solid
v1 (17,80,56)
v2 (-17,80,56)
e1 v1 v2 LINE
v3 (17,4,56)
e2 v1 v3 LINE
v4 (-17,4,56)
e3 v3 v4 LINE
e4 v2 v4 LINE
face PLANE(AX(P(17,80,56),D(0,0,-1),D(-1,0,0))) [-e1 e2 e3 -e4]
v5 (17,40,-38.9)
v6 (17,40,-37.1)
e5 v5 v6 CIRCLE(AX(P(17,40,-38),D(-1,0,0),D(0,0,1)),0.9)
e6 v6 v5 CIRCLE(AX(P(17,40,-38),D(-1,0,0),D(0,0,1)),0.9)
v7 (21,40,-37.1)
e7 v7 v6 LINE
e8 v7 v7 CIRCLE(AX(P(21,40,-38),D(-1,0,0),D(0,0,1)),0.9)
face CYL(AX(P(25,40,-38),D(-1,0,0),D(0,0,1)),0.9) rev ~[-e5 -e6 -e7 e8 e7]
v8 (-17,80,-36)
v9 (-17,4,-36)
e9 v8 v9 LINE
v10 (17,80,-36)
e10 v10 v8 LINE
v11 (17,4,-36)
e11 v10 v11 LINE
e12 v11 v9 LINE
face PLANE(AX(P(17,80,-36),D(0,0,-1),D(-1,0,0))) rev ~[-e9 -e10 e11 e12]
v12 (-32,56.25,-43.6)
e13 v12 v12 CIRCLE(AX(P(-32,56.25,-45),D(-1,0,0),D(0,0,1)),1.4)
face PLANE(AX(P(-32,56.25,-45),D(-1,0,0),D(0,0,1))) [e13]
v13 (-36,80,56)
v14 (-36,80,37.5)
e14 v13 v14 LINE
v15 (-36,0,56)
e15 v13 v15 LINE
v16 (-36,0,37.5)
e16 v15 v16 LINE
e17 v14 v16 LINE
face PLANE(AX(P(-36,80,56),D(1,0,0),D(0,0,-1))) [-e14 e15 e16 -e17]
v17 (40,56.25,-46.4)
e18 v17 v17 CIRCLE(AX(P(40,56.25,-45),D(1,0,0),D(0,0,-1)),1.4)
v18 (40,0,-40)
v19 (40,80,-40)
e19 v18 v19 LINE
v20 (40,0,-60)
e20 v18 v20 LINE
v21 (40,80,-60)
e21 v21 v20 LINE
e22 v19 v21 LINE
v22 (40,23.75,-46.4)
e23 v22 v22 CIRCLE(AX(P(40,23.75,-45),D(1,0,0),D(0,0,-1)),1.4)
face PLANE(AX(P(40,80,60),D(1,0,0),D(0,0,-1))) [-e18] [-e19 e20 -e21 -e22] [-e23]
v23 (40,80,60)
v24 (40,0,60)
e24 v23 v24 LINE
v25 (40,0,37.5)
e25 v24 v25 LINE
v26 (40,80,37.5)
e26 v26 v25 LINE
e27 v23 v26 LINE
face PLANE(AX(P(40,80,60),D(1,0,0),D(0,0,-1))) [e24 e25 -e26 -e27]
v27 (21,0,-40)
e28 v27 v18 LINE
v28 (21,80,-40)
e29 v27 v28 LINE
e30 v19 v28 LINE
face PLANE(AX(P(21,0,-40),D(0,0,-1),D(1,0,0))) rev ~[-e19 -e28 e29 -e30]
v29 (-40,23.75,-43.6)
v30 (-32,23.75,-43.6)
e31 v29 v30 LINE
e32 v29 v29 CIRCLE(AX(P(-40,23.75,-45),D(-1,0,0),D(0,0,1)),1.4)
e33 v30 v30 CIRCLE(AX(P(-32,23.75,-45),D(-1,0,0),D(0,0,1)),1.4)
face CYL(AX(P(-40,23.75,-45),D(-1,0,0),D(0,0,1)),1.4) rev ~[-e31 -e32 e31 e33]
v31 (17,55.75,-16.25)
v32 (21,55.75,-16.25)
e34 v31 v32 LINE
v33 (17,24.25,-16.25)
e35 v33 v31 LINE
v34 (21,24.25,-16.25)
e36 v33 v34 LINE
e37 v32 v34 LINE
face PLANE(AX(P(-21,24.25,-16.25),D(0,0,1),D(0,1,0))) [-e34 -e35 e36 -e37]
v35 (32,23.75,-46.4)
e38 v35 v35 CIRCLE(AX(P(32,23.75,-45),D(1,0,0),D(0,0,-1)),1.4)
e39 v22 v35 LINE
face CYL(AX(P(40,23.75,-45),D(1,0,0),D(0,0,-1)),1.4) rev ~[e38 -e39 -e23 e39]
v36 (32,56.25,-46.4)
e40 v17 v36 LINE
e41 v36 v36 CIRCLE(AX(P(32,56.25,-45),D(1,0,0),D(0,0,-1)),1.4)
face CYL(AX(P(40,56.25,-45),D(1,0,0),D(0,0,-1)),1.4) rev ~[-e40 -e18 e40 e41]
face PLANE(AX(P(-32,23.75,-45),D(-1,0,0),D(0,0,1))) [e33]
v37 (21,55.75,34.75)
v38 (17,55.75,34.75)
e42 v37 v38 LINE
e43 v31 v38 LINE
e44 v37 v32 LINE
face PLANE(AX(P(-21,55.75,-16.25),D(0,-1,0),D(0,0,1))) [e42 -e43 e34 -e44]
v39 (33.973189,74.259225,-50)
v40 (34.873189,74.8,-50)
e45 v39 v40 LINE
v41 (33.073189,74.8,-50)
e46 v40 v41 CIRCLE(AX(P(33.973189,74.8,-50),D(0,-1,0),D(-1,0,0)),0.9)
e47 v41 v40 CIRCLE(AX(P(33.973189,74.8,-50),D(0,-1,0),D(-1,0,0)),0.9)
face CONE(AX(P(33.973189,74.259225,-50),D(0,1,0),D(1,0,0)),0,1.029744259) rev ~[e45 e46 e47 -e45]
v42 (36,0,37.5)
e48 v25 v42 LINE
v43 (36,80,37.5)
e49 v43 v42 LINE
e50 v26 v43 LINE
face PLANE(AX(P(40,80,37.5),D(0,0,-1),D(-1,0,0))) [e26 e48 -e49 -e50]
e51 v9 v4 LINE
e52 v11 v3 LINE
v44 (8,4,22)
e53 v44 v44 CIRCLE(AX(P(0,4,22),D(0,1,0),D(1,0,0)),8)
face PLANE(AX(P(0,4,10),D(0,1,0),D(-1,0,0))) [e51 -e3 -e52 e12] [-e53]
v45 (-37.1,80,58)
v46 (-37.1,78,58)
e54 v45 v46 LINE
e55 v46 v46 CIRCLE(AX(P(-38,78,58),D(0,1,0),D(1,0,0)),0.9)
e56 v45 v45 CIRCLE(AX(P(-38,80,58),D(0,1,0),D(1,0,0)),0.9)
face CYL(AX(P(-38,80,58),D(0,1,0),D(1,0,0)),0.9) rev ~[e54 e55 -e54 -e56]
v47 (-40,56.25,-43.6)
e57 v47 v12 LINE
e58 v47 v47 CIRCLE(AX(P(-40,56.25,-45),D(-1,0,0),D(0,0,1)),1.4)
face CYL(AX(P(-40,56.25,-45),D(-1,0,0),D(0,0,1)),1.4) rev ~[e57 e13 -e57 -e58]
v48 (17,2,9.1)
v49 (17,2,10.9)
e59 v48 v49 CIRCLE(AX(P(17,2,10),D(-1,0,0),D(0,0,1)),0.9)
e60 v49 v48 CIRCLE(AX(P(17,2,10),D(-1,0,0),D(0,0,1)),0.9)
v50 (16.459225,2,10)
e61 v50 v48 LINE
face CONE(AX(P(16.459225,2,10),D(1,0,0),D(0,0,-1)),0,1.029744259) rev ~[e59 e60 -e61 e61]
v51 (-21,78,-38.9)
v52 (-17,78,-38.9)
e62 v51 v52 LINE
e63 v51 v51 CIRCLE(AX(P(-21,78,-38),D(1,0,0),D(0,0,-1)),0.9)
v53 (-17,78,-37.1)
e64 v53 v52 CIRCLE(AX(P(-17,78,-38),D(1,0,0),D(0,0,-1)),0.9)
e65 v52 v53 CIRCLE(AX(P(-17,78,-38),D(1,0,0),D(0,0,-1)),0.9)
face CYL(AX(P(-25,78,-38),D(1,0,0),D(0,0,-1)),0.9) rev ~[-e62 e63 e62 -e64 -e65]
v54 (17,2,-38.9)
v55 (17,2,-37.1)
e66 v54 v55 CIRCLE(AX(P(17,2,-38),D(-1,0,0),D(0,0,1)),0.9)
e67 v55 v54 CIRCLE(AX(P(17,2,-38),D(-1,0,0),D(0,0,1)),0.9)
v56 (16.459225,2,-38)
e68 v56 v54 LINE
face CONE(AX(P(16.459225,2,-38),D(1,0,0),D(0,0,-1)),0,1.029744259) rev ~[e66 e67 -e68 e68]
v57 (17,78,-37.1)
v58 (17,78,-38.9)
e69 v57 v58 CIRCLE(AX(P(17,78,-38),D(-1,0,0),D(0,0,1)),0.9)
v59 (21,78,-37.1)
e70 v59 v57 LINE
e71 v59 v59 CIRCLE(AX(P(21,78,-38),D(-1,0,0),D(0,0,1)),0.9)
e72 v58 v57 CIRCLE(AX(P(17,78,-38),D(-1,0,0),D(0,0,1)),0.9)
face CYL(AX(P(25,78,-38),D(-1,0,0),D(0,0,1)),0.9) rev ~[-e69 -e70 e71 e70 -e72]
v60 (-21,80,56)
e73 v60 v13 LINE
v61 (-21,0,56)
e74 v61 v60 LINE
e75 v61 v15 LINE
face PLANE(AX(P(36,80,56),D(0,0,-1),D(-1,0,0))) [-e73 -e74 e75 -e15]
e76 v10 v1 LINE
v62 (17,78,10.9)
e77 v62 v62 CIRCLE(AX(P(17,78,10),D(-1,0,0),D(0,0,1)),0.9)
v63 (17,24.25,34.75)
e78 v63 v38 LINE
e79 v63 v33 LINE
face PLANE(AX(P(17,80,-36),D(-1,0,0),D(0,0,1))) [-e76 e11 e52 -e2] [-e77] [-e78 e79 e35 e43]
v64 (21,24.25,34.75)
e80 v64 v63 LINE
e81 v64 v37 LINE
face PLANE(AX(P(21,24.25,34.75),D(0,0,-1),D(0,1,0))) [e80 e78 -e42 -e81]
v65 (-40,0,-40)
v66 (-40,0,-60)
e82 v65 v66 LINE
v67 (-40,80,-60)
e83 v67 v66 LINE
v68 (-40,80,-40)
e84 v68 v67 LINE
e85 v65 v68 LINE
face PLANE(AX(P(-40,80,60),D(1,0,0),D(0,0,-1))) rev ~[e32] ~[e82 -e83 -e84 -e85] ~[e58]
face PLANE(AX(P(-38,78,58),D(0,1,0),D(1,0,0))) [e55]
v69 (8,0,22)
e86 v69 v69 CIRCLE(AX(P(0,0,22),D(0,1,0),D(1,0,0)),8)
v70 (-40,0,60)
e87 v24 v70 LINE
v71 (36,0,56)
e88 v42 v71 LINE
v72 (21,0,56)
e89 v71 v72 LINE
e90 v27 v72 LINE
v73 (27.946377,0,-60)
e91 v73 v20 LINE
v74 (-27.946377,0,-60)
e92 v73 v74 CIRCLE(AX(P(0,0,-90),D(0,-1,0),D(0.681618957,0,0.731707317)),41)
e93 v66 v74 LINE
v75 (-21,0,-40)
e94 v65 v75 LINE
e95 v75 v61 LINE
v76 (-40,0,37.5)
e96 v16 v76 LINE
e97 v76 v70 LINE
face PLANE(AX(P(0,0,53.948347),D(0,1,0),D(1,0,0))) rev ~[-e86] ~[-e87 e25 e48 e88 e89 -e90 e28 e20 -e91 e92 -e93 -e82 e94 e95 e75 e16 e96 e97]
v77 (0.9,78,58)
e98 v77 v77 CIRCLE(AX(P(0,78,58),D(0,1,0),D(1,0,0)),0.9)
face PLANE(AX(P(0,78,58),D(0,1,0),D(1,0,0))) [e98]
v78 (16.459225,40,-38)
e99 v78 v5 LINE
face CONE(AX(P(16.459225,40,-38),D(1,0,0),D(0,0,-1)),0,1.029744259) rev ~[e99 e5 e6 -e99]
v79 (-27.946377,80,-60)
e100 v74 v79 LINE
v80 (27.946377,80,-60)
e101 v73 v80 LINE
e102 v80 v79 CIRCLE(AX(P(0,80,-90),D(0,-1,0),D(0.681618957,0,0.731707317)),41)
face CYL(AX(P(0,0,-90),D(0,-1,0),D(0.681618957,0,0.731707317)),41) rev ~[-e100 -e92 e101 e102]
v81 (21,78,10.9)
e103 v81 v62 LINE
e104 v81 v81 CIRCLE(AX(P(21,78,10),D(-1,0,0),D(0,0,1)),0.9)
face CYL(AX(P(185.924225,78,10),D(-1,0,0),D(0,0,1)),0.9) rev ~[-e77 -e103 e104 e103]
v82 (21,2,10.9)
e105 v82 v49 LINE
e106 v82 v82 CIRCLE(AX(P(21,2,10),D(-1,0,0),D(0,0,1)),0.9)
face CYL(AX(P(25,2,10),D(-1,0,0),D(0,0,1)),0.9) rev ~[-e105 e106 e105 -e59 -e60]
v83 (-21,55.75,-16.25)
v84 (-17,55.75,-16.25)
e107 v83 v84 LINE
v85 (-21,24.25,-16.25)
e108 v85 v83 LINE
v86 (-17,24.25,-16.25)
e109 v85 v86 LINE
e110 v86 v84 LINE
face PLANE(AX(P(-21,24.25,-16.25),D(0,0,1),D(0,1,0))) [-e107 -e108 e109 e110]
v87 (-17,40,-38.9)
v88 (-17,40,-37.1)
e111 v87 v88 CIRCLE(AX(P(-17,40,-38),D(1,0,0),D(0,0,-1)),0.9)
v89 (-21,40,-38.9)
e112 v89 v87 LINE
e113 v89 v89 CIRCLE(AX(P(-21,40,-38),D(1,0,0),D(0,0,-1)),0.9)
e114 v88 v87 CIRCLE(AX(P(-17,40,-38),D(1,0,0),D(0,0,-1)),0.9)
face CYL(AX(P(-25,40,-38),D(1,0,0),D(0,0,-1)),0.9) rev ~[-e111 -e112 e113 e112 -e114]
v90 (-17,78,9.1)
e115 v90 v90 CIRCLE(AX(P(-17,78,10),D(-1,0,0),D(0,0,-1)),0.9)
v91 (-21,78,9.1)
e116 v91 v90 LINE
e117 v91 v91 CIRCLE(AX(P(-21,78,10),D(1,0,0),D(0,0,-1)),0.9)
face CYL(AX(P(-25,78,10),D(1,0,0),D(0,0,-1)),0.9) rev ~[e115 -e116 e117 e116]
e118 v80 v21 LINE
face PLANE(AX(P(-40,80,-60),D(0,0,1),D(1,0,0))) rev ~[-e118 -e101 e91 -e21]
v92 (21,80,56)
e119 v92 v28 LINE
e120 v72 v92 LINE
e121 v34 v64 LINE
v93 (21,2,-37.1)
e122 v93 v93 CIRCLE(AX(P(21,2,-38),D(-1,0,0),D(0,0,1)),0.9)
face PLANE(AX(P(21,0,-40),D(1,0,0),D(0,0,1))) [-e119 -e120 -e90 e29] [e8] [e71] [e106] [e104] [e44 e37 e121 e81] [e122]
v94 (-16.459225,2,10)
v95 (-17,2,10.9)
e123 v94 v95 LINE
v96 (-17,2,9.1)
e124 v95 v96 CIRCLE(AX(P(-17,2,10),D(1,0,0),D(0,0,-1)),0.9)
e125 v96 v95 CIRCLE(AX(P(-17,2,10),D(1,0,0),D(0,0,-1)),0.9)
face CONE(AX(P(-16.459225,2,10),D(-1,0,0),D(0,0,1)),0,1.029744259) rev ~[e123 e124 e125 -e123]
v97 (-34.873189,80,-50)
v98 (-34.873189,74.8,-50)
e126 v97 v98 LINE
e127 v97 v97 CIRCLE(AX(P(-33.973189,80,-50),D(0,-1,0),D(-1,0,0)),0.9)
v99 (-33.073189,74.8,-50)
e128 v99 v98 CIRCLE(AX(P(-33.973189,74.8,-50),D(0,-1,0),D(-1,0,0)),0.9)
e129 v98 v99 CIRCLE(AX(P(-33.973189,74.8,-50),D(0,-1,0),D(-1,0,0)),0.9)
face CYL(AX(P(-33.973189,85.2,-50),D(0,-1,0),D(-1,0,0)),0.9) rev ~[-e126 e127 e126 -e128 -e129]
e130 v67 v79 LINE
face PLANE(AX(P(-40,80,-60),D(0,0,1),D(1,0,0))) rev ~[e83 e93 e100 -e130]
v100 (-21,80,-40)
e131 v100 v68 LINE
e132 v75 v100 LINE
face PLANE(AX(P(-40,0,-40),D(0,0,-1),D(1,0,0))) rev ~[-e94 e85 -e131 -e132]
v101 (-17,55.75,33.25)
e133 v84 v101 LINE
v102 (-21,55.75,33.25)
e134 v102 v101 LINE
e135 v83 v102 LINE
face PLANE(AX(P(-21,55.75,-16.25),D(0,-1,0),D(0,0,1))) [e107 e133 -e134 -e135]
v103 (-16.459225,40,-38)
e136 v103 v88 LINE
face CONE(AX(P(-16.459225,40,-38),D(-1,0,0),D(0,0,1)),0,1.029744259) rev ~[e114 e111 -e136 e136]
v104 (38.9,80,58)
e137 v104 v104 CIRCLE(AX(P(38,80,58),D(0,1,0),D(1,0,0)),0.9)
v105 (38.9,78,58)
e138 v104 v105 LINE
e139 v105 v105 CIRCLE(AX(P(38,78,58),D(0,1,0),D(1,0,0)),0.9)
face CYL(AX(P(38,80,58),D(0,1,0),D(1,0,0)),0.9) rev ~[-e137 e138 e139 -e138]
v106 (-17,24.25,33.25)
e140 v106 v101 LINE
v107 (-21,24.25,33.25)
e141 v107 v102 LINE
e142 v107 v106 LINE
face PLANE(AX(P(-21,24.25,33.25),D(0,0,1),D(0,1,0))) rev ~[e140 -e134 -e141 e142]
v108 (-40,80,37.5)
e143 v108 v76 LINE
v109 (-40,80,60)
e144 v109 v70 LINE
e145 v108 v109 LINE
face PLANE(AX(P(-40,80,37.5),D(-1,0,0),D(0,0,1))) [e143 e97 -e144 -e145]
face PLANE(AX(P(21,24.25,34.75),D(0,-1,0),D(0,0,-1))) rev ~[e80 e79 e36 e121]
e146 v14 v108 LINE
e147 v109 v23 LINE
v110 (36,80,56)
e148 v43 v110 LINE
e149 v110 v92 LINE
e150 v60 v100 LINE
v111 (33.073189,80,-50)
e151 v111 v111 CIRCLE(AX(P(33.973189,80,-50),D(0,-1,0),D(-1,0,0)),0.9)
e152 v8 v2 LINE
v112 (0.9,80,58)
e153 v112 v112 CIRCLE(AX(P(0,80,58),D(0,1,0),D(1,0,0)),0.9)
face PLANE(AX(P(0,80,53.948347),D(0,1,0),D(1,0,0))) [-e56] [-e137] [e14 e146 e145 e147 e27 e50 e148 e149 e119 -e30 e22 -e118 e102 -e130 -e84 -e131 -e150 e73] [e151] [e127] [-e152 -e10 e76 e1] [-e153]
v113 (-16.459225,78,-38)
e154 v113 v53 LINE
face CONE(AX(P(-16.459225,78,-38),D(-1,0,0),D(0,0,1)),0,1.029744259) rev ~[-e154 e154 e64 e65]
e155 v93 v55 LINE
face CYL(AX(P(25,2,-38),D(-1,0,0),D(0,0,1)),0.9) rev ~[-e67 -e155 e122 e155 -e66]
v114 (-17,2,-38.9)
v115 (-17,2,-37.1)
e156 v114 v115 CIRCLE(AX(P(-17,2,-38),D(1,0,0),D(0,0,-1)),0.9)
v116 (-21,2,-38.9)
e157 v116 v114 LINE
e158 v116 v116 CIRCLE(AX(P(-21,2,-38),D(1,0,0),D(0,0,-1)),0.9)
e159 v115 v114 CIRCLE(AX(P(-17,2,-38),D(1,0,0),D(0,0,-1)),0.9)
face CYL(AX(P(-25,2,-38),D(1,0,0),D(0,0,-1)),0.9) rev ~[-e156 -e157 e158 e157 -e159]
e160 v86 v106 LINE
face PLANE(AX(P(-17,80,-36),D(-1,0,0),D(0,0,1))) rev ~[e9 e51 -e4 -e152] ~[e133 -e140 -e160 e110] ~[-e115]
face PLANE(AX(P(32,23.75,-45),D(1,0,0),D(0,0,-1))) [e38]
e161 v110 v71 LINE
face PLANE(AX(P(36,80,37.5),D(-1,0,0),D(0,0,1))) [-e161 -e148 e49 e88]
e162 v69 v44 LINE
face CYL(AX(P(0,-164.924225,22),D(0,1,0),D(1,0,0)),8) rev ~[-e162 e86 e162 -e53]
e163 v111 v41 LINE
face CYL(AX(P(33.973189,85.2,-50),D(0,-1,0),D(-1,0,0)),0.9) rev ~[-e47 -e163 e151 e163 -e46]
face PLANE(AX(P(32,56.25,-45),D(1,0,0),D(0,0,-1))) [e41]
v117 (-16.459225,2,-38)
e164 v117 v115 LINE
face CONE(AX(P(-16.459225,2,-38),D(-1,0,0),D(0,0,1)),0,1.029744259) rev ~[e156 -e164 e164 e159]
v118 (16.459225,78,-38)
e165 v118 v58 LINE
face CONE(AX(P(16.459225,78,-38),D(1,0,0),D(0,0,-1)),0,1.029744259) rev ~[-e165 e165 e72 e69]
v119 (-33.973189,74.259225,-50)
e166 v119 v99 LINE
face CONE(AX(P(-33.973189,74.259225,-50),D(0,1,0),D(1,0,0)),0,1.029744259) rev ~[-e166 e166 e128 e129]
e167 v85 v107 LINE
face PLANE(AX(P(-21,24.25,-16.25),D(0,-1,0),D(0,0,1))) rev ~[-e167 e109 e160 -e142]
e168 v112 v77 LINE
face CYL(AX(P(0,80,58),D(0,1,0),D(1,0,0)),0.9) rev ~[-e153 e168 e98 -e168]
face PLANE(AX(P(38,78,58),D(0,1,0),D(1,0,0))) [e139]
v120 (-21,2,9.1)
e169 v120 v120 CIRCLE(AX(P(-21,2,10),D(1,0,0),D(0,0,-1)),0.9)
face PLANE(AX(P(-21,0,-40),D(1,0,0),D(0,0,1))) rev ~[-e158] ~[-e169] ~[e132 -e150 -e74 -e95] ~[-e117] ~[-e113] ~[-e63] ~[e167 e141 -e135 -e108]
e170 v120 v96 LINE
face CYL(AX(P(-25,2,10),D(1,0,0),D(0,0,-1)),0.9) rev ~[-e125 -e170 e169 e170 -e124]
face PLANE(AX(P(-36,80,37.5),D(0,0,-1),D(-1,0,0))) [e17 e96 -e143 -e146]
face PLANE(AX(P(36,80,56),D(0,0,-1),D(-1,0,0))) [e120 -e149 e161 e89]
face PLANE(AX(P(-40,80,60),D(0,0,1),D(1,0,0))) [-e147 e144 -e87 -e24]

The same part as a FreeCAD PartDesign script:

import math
import FreeCAD as App
import Part
import Sketcher

V = App.Vector
Q = App.Units.Quantity

doc = App.newDocument("Part")
body = doc.addObject("PartDesign::Body", "Body")

sketch1 = doc.addObject("Sketcher::SketchObject", "Sketch")
body.addObject(sketch1)
sketch1.AttachmentSupport = (doc.XZ_Plane, [""])
sketch1.MapMode = "FlatFace"
sketch1.AttachmentOffset = App.Placement(V(0, 0, -80), App.Rotation())
sketch1.addGeometry([
    Part.LineSegment(V(-40, -60, 0), V(-40, 60, 0)),
    Part.LineSegment(V(-40, 60, 0), V(40, 60, 0)),
    Part.LineSegment(V(40, 60, 0), V(40, -60, 0)),
    Part.LineSegment(V(40, -60, 0), V(-40, -60, 0)),
], False)
sketch1.addConstraint([
    Sketcher.Constraint("Coincident", 0, 2, 1, 1),
    Sketcher.Constraint("Coincident", 1, 2, 2, 1),
    Sketcher.Constraint("Coincident", 2, 2, 3, 1),
    Sketcher.Constraint("Coincident", 3, 2, 0, 1),
    Sketcher.Constraint("Vertical", 0),
    Sketcher.Constraint("Horizontal", 1),
    Sketcher.Constraint("Vertical", 2),
    Sketcher.Constraint("Horizontal", 3),
    Sketcher.Constraint("Symmetric", 0, 2, 2, 2, -1, 1),
    Sketcher.Constraint("DistanceX", 1, 1, 1, 2, Q("80 mm")),
    Sketcher.Constraint("DistanceY", 0, 1, 0, 2, Q("120 mm")),
])
pad1 = doc.addObject("PartDesign::Pad", "Pad")
body.addObject(pad1)
pad1.Profile = sketch1
pad1.Length = 80

sketch2 = doc.addObject("Sketcher::SketchObject", "Sketch001")
body.addObject(sketch2)
sketch2.AttachmentSupport = (doc.XZ_Plane, [""])
sketch2.MapMode = "FlatFace"
sketch2.addGeometry([
    Part.LineSegment(V(-40, 60, 0), V(-40, -40, 0)),
    Part.LineSegment(V(-40, -40, 0), V(-21, -40, 0)),
    Part.LineSegment(V(-21, -40, 0), V(-21, 60, 0)),
    Part.LineSegment(V(-21, 60, 0), V(-40, 60, 0)),
], False)
sketch2.addConstraint([
    Sketcher.Constraint("Coincident", 0, 2, 1, 1),
    Sketcher.Constraint("Coincident", 1, 2, 2, 1),
    Sketcher.Constraint("Coincident", 2, 2, 3, 1),
    Sketcher.Constraint("Coincident", 3, 2, 0, 1),
    Sketcher.Constraint("Vertical", 0),
    Sketcher.Constraint("Horizontal", 1),
    Sketcher.Constraint("Vertical", 2),
    Sketcher.Constraint("Horizontal", 3),
    Sketcher.Constraint("DistanceX", 1, 1, 1, 2, Q("19 mm")),
    Sketcher.Constraint("DistanceY", 0, 2, 0, 1, Q("100 mm")),
    Sketcher.Constraint("DistanceX", 0, 2, -1, 1, Q("40 mm")),
    Sketcher.Constraint("DistanceY", 0, 2, -1, 1, Q("40 mm")),
])
pocket1 = doc.addObject("PartDesign::Pocket", "Pocket")
body.addObject(pocket1)
pocket1.Profile = sketch2
pocket1.Type = "ThroughAll"

sketch3 = doc.addObject("Sketcher::SketchObject", "Sketch002")
body.addObject(sketch3)
sketch3.AttachmentSupport = (doc.XZ_Plane, [""])
sketch3.MapMode = "FlatFace"
sketch3.addGeometry([
    Part.LineSegment(V(21, 60, 0), V(21, -40, 0)),
    Part.LineSegment(V(21, -40, 0), V(40, -40, 0)),
    Part.LineSegment(V(40, -40, 0), V(40, 60, 0)),
    Part.LineSegment(V(40, 60, 0), V(21, 60, 0)),
], False)
sketch3.addConstraint([
    Sketcher.Constraint("Coincident", 0, 2, 1, 1),
    Sketcher.Constraint("Coincident", 1, 2, 2, 1),
    Sketcher.Constraint("Coincident", 2, 2, 3, 1),
    Sketcher.Constraint("Coincident", 3, 2, 0, 1),
    Sketcher.Constraint("Vertical", 0),
    Sketcher.Constraint("Horizontal", 1),
    Sketcher.Constraint("Vertical", 2),
    Sketcher.Constraint("Horizontal", 3),
    Sketcher.Constraint("DistanceX", 1, 1, 1, 2, Q("19 mm")),
    Sketcher.Constraint("DistanceY", 0, 2, 0, 1, Q("100 mm")),
    Sketcher.Constraint("DistanceX", -1, 1, 0, 2, Q("21 mm")),
    Sketcher.Constraint("DistanceY", 0, 2, -1, 1, Q("40 mm")),
])
pocket2 = doc.addObject("PartDesign::Pocket", "Pocket001")
body.addObject(pocket2)
pocket2.Profile = sketch3
pocket2.Type = "ThroughAll"

sketch4 = doc.addObject("Sketcher::SketchObject", "Sketch003")
body.addObject(sketch4)
sketch4.AttachmentSupport = (doc.XZ_Plane, [""])
sketch4.MapMode = "FlatFace"
sketch4.addGeometry([
    Part.LineSegment(V(-28, -60, 0), V(28, -60, 0)),
    Part.ArcOfCircle(Part.Circle(V(0, -90, 0), V(0, 0, 1), 41), math.radians(47), math.radians(133)),
], False)
sketch4.addConstraint([
    Sketcher.Constraint("Coincident", 0, 1, 1, 2),
    Sketcher.Constraint("Coincident", 1, 1, 0, 2),
    Sketcher.Constraint("Horizontal", 0),
    Sketcher.Constraint("PointOnObject", 1, 3, -2),
    Sketcher.Constraint("Radius", 1, Q("41 mm")),
    Sketcher.Constraint("DistanceY", 1, 3, -1, 1, Q("90 mm")),
    Sketcher.Constraint("DistanceY", 0, 1, -1, 1, Q("60 mm")),
])
pocket3 = doc.addObject("PartDesign::Pocket", "Pocket002")
body.addObject(pocket3)
pocket3.Profile = sketch4
pocket3.Type = "ThroughAll"

sketch5 = doc.addObject("Sketcher::SketchObject", "Sketch004")
body.addObject(sketch5)
sketch5.AttachmentSupport = (doc.XZ_Plane, [""])
sketch5.MapMode = "FlatFace"
sketch5.AttachmentOffset = App.Placement(V(0, 0, -80), App.Rotation())
sketch5.addGeometry([
    Part.LineSegment(V(17, 56, 0), V(17, -36, 0)),
    Part.LineSegment(V(17, -36, 0), V(-17, -36, 0)),
    Part.LineSegment(V(-17, -36, 0), V(-17, 56, 0)),
    Part.LineSegment(V(-17, 56, 0), V(17, 56, 0)),
], False)
sketch5.addConstraint([
    Sketcher.Constraint("Coincident", 0, 2, 1, 1),
    Sketcher.Constraint("Coincident", 1, 2, 2, 1),
    Sketcher.Constraint("Coincident", 2, 2, 3, 1),
    Sketcher.Constraint("Coincident", 3, 2, 0, 1),
    Sketcher.Constraint("Vertical", 0),
    Sketcher.Constraint("Horizontal", 1),
    Sketcher.Constraint("Vertical", 2),
    Sketcher.Constraint("Horizontal", 3),
    Sketcher.Constraint("DistanceX", 1, 2, 1, 1, Q("34 mm")),
    Sketcher.Constraint("DistanceY", 0, 2, 0, 1, Q("92 mm")),
    Sketcher.Constraint("DistanceX", -1, 1, 0, 2, Q("17 mm")),
    Sketcher.Constraint("DistanceY", 0, 2, -1, 1, Q("36 mm")),
])
pocket4 = doc.addObject("PartDesign::Pocket", "Pocket003")
body.addObject(pocket4)
pocket4.Profile = sketch5
pocket4.Length = 76
pocket4.Reversed = True

sketch6 = doc.addObject("Sketcher::SketchObject", "Sketch005")
body.addObject(sketch6)
sketch6.AttachmentSupport = (doc.YZ_Plane, [""])
sketch6.MapMode = "FlatFace"
sketch6.AttachmentOffset = App.Placement(V(0, 0, 21), App.Rotation())
sketch6.addGeometry([
    Part.LineSegment(V(56, 35, 0), V(24, 35, 0)),
    Part.LineSegment(V(24, 35, 0), V(24, -15, 0)),
    Part.LineSegment(V(24, -15, 0), V(56, -15, 0)),
    Part.LineSegment(V(56, -15, 0), V(56, 35, 0)),
], False)
sketch6.addConstraint([
    Sketcher.Constraint("Coincident", 0, 2, 1, 1),
    Sketcher.Constraint("Coincident", 1, 2, 2, 1),
    Sketcher.Constraint("Coincident", 2, 2, 3, 1),
    Sketcher.Constraint("Coincident", 3, 2, 0, 1),
    Sketcher.Constraint("Horizontal", 0),
    Sketcher.Constraint("Vertical", 1),
    Sketcher.Constraint("Horizontal", 2),
    Sketcher.Constraint("Vertical", 3),
    Sketcher.Constraint("DistanceX", 0, 2, 0, 1, Q("31.5 mm")),
    Sketcher.Constraint("DistanceY", 1, 2, 1, 1, Q("49.5 mm")),
    Sketcher.Constraint("DistanceX", -1, 1, 0, 2, Q("24.25 mm")),
    Sketcher.Constraint("DistanceY", -1, 1, 0, 2, Q("34.75 mm")),
])
pocket5 = doc.addObject("PartDesign::Pocket", "Pocket004")
body.addObject(pocket5)
pocket5.Profile = sketch6
pocket5.Type = "UpToFirst"

sketch7 = doc.addObject("Sketcher::SketchObject", "Sketch006")
body.addObject(sketch7)
sketch7.AttachmentSupport = (doc.YZ_Plane, [""])
sketch7.MapMode = "FlatFace"
sketch7.AttachmentOffset = App.Placement(V(0, 0, -21), App.Rotation())
sketch7.addGeometry([
    Part.LineSegment(V(56, -16, 0), V(24, -16, 0)),
    Part.LineSegment(V(24, -16, 0), V(24, 33, 0)),
    Part.LineSegment(V(24, 33, 0), V(56, 33, 0)),
    Part.LineSegment(V(56, 33, 0), V(56, -16, 0)),
], False)
sketch7.addConstraint([
    Sketcher.Constraint("Coincident", 0, 2, 1, 1),
    Sketcher.Constraint("Coincident", 1, 2, 2, 1),
    Sketcher.Constraint("Coincident", 2, 2, 3, 1),
    Sketcher.Constraint("Coincident", 3, 2, 0, 1),
    Sketcher.Constraint("Horizontal", 0),
    Sketcher.Constraint("Vertical", 1),
    Sketcher.Constraint("Horizontal", 2),
    Sketcher.Constraint("Vertical", 3),
    Sketcher.Constraint("DistanceX", 0, 2, 0, 1, Q("31.5 mm")),
    Sketcher.Constraint("DistanceY", 1, 1, 1, 2, Q("49.5 mm")),
    Sketcher.Constraint("DistanceX", -1, 1, 0, 2, Q("24.25 mm")),
    Sketcher.Constraint("DistanceY", 0, 2, -1, 1, Q("16.25 mm")),
])
pocket6 = doc.addObject("PartDesign::Pocket", "Pocket005")
body.addObject(pocket6)
pocket6.Profile = sketch7
pocket6.Type = "ThroughAll"
pocket6.Reversed = True

sketch8 = doc.addObject("Sketcher::SketchObject", "Sketch007")
body.addObject(sketch8)
sketch8.AttachmentSupport = (doc.YZ_Plane, [""])
sketch8.MapMode = "FlatFace"
sketch8.AttachmentOffset = App.Placement(V(0, 0, -21), App.Rotation())
sketch8.addGeometry(Part.Circle(V(78, 10, 0), V(0, 0, 1), 0.9), False)
sketch8.addConstraint([
    Sketcher.Constraint("Diameter", 0, Q("1.8 mm")),
    Sketcher.Constraint("DistanceX", -1, 1, 0, 3, Q("78 mm")),
    Sketcher.Constraint("DistanceY", -1, 1, 0, 3, Q("10 mm")),
])
doc.recompute()
hole = doc.addObject("PartDesign::Hole", "Hole")
body.addObject(hole)
hole.Profile = sketch8
hole.ThreadType = "None"
hole.Diameter = 1.8
hole.DepthType = "Dimension"
hole.Depth = 4
hole.DrillPoint = "Flat"
hole.Reversed = True

sketch9 = doc.addObject("Sketcher::SketchObject", "Sketch008")
body.addObject(sketch9)
sketch9.AttachmentSupport = (doc.XZ_Plane, [""])
sketch9.MapMode = "FlatFace"
sketch9.addGeometry(Part.Circle(V(0, 22, 0), V(0, 0, 1), 8), False)
sketch9.addConstraint([
    Sketcher.Constraint("PointOnObject", 0, 3, -2),
    Sketcher.Constraint("Diameter", 0, Q("16 mm")),
    Sketcher.Constraint("DistanceY", -1, 1, 0, 3, Q("22 mm")),
])
doc.recompute()
hole2 = doc.addObject("PartDesign::Hole", "Hole001")
body.addObject(hole2)
hole2.Profile = sketch9
hole2.ThreadType = "None"
hole2.Diameter = 16
hole2.DepthType = "ThroughAll"

sketch10 = doc.addObject("Sketcher::SketchObject", "Sketch009")
body.addObject(sketch10)
sketch10.AttachmentSupport = (doc.YZ_Plane, [""])
sketch10.MapMode = "FlatFace"
sketch10.AttachmentOffset = App.Placement(V(0, 0, -21), App.Rotation())
sketch10.addGeometry([
    Part.Circle(V(78, -38, 0), V(0, 0, 1), 0.9),
    Part.Circle(V(40, -38, 0), V(0, 0, 1), 0.9),
    Part.Circle(V(2, -38, 0), V(0, 0, 1), 0.9),
    Part.Circle(V(2, 10, 0), V(0, 0, 1), 0.9),
], False)
sketch10.addConstraint([
    Sketcher.Constraint("Equal", 0, 1),
    Sketcher.Constraint("Equal", 1, 2),
    Sketcher.Constraint("Equal", 2, 3),
    Sketcher.Constraint("Horizontal", 0, 3, 1, 3),
    Sketcher.Constraint("Horizontal", 1, 3, 2, 3),
    Sketcher.Constraint("Vertical", 2, 3, 3, 3),
    Sketcher.Constraint("Diameter", 0, Q("1.8 mm")),
    Sketcher.Constraint("DistanceX", -1, 1, 0, 3, Q("78 mm")),
    Sketcher.Constraint("DistanceY", 0, 3, -1, 1, Q("38 mm")),
    Sketcher.Constraint("DistanceX", -1, 1, 1, 3, Q("40 mm")),
    Sketcher.Constraint("DistanceX", -1, 1, 2, 3, Q("2 mm")),
    Sketcher.Constraint("DistanceY", -1, 1, 3, 3, Q("10 mm")),
])
doc.recompute()
hole3 = doc.addObject("PartDesign::Hole", "Hole002")
body.addObject(hole3)
hole3.Profile = sketch10
hole3.ThreadType = "None"
hole3.Diameter = 1.8
hole3.DepthType = "Dimension"
hole3.Depth = 4
hole3.DrillPoint = "Angled"
hole3.DrillPointAngle = 118
hole3.Reversed = True

sketch11 = doc.addObject("Sketcher::SketchObject", "Sketch010")
body.addObject(sketch11)
sketch11.AttachmentSupport = (doc.YZ_Plane, [""])
sketch11.MapMode = "FlatFace"
sketch11.AttachmentOffset = App.Placement(V(0, 0, 21), App.Rotation())
sketch11.addGeometry(Part.Circle(V(78, 10, 0), V(0, 0, 1), 0.9), False)
sketch11.addConstraint([
    Sketcher.Constraint("Diameter", 0, Q("1.8 mm")),
    Sketcher.Constraint("DistanceX", -1, 1, 0, 3, Q("78 mm")),
    Sketcher.Constraint("DistanceY", -1, 1, 0, 3, Q("10 mm")),
])
doc.recompute()
hole4 = doc.addObject("PartDesign::Hole", "Hole003")
body.addObject(hole4)
hole4.Profile = sketch11
hole4.ThreadType = "None"
hole4.Diameter = 1.8
hole4.DepthType = "ThroughAll"

sketch12 = doc.addObject("Sketcher::SketchObject", "Sketch011")
body.addObject(sketch12)
sketch12.AttachmentSupport = (doc.XZ_Plane, [""])
sketch12.MapMode = "FlatFace"
sketch12.AttachmentOffset = App.Placement(V(0, 0, -80), App.Rotation())
sketch12.addGeometry([
    Part.Circle(V(34, -50, 0), V(0, 0, 1), 0.9),
    Part.Circle(V(-34, -50, 0), V(0, 0, 1), 0.9),
], False)
sketch12.addConstraint([
    Sketcher.Constraint("Equal", 0, 1),
    Sketcher.Constraint("Symmetric", 0, 3, 1, 3, -2),
    Sketcher.Constraint("Diameter", 0, Q("1.8 mm")),
    Sketcher.Constraint("DistanceY", 0, 3, -1, 1, Q("50 mm")),
    Sketcher.Constraint("DistanceX", -1, 1, 0, 3, Q("33.973189 mm")),
])
doc.recompute()
hole5 = doc.addObject("PartDesign::Hole", "Hole004")
body.addObject(hole5)
hole5.Profile = sketch12
hole5.ThreadType = "None"
hole5.Diameter = 1.8
hole5.DepthType = "Dimension"
hole5.Depth = 5.2
hole5.DrillPoint = "Angled"
hole5.DrillPointAngle = 118
hole5.Reversed = True

sketch13 = doc.addObject("Sketcher::SketchObject", "Sketch012")
body.addObject(sketch13)
sketch13.AttachmentSupport = (doc.YZ_Plane, [""])
sketch13.MapMode = "FlatFace"
sketch13.AttachmentOffset = App.Placement(V(0, 0, 21), App.Rotation())
sketch13.addGeometry([
    Part.Circle(V(78, -38, 0), V(0, 0, 1), 0.9),
    Part.Circle(V(40, -38, 0), V(0, 0, 1), 0.9),
    Part.Circle(V(2, -38, 0), V(0, 0, 1), 0.9),
    Part.Circle(V(2, 10, 0), V(0, 0, 1), 0.9),
], False)
sketch13.addConstraint([
    Sketcher.Constraint("Equal", 0, 1),
    Sketcher.Constraint("Equal", 1, 2),
    Sketcher.Constraint("Equal", 2, 3),
    Sketcher.Constraint("Horizontal", 0, 3, 1, 3),
    Sketcher.Constraint("Horizontal", 1, 3, 2, 3),
    Sketcher.Constraint("Vertical", 2, 3, 3, 3),
    Sketcher.Constraint("Diameter", 0, Q("1.8 mm")),
    Sketcher.Constraint("DistanceX", -1, 1, 0, 3, Q("78 mm")),
    Sketcher.Constraint("DistanceY", 0, 3, -1, 1, Q("38 mm")),
    Sketcher.Constraint("DistanceX", -1, 1, 1, 3, Q("40 mm")),
    Sketcher.Constraint("DistanceX", -1, 1, 2, 3, Q("2 mm")),
    Sketcher.Constraint("DistanceY", -1, 1, 3, 3, Q("10 mm")),
])
doc.recompute()
hole6 = doc.addObject("PartDesign::Hole", "Hole005")
body.addObject(hole6)
hole6.Profile = sketch13
hole6.ThreadType = "None"
hole6.Diameter = 1.8
hole6.DepthType = "Dimension"
hole6.Depth = 4
hole6.DrillPoint = "Angled"
hole6.DrillPointAngle = 118

sketch14 = doc.addObject("Sketcher::SketchObject", "Sketch013")
body.addObject(sketch14)
sketch14.AttachmentSupport = (doc.XZ_Plane, [""])
sketch14.MapMode = "FlatFace"
sketch14.AttachmentOffset = App.Placement(V(0, 0, -80), App.Rotation())
sketch14.addGeometry([
    Part.LineSegment(V(40, 37.5, 0), V(36, 37.5, 0)),
    Part.LineSegment(V(36, 37.5, 0), V(36, 56, 0)),
    Part.LineSegment(V(36, 56, 0), V(-36, 56, 0)),
    Part.LineSegment(V(-36, 56, 0), V(-36, 37.5, 0)),
    Part.LineSegment(V(-36, 37.5, 0), V(-40, 37.5, 0)),
    Part.LineSegment(V(-40, 37.5, 0), V(-40, 60, 0)),
    Part.LineSegment(V(-40, 60, 0), V(40, 60, 0)),
    Part.LineSegment(V(40, 60, 0), V(40, 37.5, 0)),
], False)
sketch14.addConstraint([
    Sketcher.Constraint("Coincident", 0, 2, 1, 1),
    Sketcher.Constraint("Coincident", 1, 2, 2, 1),
    Sketcher.Constraint("Coincident", 2, 2, 3, 1),
    Sketcher.Constraint("Coincident", 3, 2, 4, 1),
    Sketcher.Constraint("Coincident", 4, 2, 5, 1),
    Sketcher.Constraint("Coincident", 5, 2, 6, 1),
    Sketcher.Constraint("Coincident", 6, 2, 7, 1),
    Sketcher.Constraint("Coincident", 7, 2, 0, 1),
    Sketcher.Constraint("Horizontal", 0),
    Sketcher.Constraint("Vertical", 1),
    Sketcher.Constraint("Horizontal", 2),
    Sketcher.Constraint("Vertical", 3),
    Sketcher.Constraint("Horizontal", 4),
    Sketcher.Constraint("Vertical", 5),
    Sketcher.Constraint("Horizontal", 6),
    Sketcher.Constraint("Vertical", 7),
    Sketcher.Constraint("Symmetric", 0, 2, 3, 2, -2),
    Sketcher.Constraint("Equal", 0, 4),
    Sketcher.Constraint("DistanceX", 0, 2, 0, 1, Q("4 mm")),
    Sketcher.Constraint("DistanceX", 2, 2, 2, 1, Q("72 mm")),
    Sketcher.Constraint("DistanceY", 1, 1, 1, 2, Q("18.5 mm")),
    Sketcher.Constraint("DistanceY", 5, 1, 5, 2, Q("22.5 mm")),
    Sketcher.Constraint("DistanceY", -1, 1, 1, 2, Q("56 mm")),
])
pad2 = doc.addObject("PartDesign::Pad", "Pad001")
body.addObject(pad2)
pad2.Profile = sketch14
pad2.Length = 80

sketch15 = doc.addObject("Sketcher::SketchObject", "Sketch014")
body.addObject(sketch15)
sketch15.AttachmentSupport = (doc.YZ_Plane, [""])
sketch15.MapMode = "FlatFace"
sketch15.AttachmentOffset = App.Placement(V(0, 0, -40), App.Rotation())
sketch15.addGeometry([
    Part.Circle(V(23.8, -45, 0), V(0, 0, 1), 1.4),
    Part.Circle(V(56.2, -45, 0), V(0, 0, 1), 1.4),
], False)
sketch15.addConstraint([
    Sketcher.Constraint("Equal", 0, 1),
    Sketcher.Constraint("Horizontal", 0, 3, 1, 3),
    Sketcher.Constraint("Diameter", 0, Q("2.8 mm")),
    Sketcher.Constraint("DistanceY", 0, 3, -1, 1, Q("45 mm")),
    Sketcher.Constraint("DistanceX", 0, 3, 1, 3, Q("32.5 mm")),
    Sketcher.Constraint("DistanceX", -1, 1, 0, 3, Q("23.75 mm")),
])
pocket7 = doc.addObject("PartDesign::Pocket", "Pocket006")
body.addObject(pocket7)
pocket7.Profile = sketch15
pocket7.Length = 8
pocket7.Reversed = True

sketch16 = doc.addObject("Sketcher::SketchObject", "Sketch015")
body.addObject(sketch16)
sketch16.AttachmentSupport = (doc.YZ_Plane, [""])
sketch16.MapMode = "FlatFace"
sketch16.AttachmentOffset = App.Placement(V(0, 0, 40), App.Rotation())
sketch16.addGeometry([
    Part.Circle(V(23.8, -45, 0), V(0, 0, 1), 1.4),
    Part.Circle(V(56.2, -45, 0), V(0, 0, 1), 1.4),
], False)
sketch16.addConstraint([
    Sketcher.Constraint("Equal", 0, 1),
    Sketcher.Constraint("Horizontal", 0, 3, 1, 3),
    Sketcher.Constraint("Diameter", 0, Q("2.8 mm")),
    Sketcher.Constraint("DistanceY", 0, 3, -1, 1, Q("45 mm")),
    Sketcher.Constraint("DistanceX", 0, 3, 1, 3, Q("32.5 mm")),
    Sketcher.Constraint("DistanceX", -1, 1, 0, 3, Q("23.75 mm")),
])
pocket8 = doc.addObject("PartDesign::Pocket", "Pocket007")
body.addObject(pocket8)
pocket8.Profile = sketch16
pocket8.Length = 8

sketch17 = doc.addObject("Sketcher::SketchObject", "Sketch016")
body.addObject(sketch17)
sketch17.AttachmentSupport = (doc.XZ_Plane, [""])
sketch17.MapMode = "FlatFace"
sketch17.AttachmentOffset = App.Placement(V(0, 0, -80), App.Rotation())
sketch17.addGeometry([
    Part.Circle(V(-38, 58, 0), V(0, 0, 1), 0.9),
    Part.Circle(V(0, 58, 0), V(0, 0, 1), 0.9),
    Part.Circle(V(38, 58, 0), V(0, 0, 1), 0.9),
], False)
sketch17.addConstraint([
    Sketcher.Constraint("Equal", 0, 1),
    Sketcher.Constraint("Equal", 1, 2),
    Sketcher.Constraint("Symmetric", 0, 3, 2, 3, -2),
    Sketcher.Constraint("PointOnObject", 1, 3, -2),
    Sketcher.Constraint("Horizontal", 0, 3, 1, 3),
    Sketcher.Constraint("Diameter", 0, Q("1.8 mm")),
    Sketcher.Constraint("DistanceX", 0, 3, -1, 1, Q("38 mm")),
    Sketcher.Constraint("DistanceY", -1, 1, 0, 3, Q("58 mm")),
])
pocket9 = doc.addObject("PartDesign::Pocket", "Pocket008")
body.addObject(pocket9)
pocket9.Profile = sketch17
pocket9.Length = 2
pocket9.Reversed = True

doc.recompute()
